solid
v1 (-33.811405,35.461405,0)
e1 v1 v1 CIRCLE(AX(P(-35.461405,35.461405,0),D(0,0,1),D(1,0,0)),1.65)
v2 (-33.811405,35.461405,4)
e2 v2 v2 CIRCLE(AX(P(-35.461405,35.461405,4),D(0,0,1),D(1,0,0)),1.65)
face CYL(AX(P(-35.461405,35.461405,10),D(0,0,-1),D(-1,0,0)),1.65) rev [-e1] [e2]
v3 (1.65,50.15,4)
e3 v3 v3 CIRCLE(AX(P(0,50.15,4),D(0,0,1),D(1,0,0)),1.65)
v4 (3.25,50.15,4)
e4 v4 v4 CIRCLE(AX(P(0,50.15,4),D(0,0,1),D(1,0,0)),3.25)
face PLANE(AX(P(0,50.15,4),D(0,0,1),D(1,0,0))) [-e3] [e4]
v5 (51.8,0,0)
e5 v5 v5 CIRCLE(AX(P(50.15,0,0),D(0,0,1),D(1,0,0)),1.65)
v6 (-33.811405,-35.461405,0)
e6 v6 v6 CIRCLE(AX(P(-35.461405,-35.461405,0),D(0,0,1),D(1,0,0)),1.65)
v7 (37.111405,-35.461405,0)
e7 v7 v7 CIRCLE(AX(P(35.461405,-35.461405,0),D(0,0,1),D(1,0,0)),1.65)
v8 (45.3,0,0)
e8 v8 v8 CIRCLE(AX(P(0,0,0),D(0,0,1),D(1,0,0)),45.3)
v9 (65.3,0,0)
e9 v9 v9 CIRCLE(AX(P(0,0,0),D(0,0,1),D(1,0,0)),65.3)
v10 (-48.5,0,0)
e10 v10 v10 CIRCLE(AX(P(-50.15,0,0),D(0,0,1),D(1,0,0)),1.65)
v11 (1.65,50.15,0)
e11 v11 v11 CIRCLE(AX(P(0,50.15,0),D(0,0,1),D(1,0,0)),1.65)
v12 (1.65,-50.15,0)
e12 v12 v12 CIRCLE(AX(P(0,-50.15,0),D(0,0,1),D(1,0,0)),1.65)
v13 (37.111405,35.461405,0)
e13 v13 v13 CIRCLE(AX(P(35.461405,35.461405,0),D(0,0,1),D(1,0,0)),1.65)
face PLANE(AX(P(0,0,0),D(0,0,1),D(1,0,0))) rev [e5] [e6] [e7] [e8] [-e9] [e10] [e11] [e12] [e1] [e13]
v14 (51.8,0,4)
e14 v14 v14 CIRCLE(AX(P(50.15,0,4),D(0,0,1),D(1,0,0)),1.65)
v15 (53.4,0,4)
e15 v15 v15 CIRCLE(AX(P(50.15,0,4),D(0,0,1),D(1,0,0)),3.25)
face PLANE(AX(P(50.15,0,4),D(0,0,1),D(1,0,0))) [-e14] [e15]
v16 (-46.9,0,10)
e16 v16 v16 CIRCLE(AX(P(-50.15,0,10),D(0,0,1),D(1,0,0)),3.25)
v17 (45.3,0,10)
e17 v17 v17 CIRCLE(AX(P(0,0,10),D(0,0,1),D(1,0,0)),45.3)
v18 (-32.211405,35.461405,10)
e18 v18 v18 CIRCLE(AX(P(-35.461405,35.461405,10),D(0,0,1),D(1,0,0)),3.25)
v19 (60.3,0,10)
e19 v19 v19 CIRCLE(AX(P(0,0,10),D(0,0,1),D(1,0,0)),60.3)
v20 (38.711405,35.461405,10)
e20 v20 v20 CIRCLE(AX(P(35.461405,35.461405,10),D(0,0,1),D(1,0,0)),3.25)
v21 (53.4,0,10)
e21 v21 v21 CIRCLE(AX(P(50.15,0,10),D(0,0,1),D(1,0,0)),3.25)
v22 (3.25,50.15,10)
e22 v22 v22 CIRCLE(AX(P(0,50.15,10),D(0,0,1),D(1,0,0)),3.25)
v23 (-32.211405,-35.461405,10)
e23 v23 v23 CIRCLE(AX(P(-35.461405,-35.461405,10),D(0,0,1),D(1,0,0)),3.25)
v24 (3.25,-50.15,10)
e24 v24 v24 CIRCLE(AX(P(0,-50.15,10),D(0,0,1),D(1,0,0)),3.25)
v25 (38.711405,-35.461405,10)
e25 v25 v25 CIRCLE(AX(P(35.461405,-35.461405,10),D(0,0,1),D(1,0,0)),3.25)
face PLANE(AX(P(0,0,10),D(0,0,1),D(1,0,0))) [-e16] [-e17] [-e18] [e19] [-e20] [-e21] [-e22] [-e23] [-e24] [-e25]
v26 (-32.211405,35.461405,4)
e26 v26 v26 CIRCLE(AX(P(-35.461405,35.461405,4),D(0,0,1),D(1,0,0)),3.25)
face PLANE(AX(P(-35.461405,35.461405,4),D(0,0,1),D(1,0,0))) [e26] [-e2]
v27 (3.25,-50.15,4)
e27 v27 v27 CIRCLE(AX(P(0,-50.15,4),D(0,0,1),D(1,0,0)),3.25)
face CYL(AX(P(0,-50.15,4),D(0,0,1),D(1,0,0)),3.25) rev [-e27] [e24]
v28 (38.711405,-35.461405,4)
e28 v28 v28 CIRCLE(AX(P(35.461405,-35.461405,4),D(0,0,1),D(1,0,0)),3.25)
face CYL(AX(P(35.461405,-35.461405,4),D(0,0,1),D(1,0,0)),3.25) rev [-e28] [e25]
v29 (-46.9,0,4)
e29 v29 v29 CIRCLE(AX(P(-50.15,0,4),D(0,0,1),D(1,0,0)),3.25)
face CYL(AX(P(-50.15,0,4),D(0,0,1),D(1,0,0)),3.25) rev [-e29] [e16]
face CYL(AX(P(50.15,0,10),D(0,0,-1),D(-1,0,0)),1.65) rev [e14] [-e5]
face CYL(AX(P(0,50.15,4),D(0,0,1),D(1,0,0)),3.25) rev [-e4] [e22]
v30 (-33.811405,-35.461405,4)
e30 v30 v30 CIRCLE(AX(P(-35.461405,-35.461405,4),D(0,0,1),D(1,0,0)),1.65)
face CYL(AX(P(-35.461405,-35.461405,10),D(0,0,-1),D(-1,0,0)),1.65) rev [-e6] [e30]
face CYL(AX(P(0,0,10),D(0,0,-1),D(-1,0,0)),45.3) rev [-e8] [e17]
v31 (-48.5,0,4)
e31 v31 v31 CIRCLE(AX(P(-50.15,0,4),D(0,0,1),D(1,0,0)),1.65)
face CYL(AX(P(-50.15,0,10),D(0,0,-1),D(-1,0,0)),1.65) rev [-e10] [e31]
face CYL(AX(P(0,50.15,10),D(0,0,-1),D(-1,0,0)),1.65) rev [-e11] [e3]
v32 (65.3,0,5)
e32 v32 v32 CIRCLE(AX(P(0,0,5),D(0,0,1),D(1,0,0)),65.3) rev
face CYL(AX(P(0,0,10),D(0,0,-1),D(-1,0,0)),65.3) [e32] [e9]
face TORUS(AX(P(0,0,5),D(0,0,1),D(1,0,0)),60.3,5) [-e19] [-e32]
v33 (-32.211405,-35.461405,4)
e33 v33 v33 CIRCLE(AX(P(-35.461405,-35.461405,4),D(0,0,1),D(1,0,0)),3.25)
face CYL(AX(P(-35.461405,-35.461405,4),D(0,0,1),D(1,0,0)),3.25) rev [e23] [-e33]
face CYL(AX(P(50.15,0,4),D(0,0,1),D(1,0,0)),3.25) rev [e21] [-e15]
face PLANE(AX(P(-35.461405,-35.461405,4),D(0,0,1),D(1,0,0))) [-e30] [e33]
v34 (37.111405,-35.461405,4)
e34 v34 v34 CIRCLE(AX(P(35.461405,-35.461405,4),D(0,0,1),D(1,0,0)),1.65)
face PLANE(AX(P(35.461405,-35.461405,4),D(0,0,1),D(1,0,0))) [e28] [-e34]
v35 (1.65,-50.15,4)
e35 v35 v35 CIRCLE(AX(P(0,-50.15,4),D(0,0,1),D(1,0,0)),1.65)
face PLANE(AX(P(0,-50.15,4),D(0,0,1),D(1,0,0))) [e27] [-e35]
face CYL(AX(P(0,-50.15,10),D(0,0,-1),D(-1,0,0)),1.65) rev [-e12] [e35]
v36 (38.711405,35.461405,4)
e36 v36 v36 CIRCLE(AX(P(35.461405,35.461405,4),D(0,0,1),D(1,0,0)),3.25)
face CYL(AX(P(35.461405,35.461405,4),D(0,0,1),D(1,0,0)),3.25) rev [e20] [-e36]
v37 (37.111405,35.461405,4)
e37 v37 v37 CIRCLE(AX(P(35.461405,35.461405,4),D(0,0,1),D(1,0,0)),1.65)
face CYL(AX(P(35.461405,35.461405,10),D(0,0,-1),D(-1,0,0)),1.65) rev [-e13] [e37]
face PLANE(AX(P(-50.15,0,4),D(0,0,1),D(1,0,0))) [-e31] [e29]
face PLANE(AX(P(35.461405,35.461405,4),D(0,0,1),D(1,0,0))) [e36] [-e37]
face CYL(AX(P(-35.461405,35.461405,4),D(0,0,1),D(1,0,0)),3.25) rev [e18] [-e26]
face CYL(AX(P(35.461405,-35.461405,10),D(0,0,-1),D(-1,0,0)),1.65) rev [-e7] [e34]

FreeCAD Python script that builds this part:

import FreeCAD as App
import Part
import Sketcher
from FreeCAD import Vector
Q = App.Units.Quantity


def edges_at(feature, points):
    """Names of the edges that pass closest to the given points."""
    edges = feature.Shape.Edges
    near = lambda p: min(range(len(edges)), key=lambda i: edges[i].distToShape(Part.Vertex(*p))[0])
    return sorted({f"Edge{near(p) + 1}" for p in points})

doc = App.newDocument("Part")
body = doc.addObject("PartDesign::Body", "Body")

sketch1 = body.newObject("Sketcher::SketchObject", "Sketch")
sketch1.AttachmentSupport = (doc.getObject("XY_Plane"), [""])
sketch1.MapMode = "FlatFace"
sketch1.addGeometry(Part.Circle(Vector(0, 0, 0), Vector(0, 0, 1), 65.3), False)
sketch1.addGeometry(Part.Circle(Vector(-35.461405, -35.461405, 0), Vector(0, 0, 1), 1.65), False)
sketch1.addGeometry(Part.Circle(Vector(0, -50.15, 0), Vector(0, 0, 1), 1.65), False)
sketch1.addGeometry(Part.Circle(Vector(-50.15, 0, 0), Vector(0, 0, 1), 1.65), False)
sketch1.addGeometry(Part.Circle(Vector(0, 0, 0), Vector(0, 0, 1), 45.3), False)
sketch1.addGeometry(Part.Circle(Vector(35.461405, -35.461405, 0), Vector(0, 0, 1), 1.65), False)
sketch1.addGeometry(Part.Circle(Vector(50.15, 0, 0), Vector(0, 0, 1), 1.65), False)
sketch1.addGeometry(Part.Circle(Vector(-35.461405, 35.461405, 0), Vector(0, 0, 1), 1.65), False)
sketch1.addGeometry(Part.Circle(Vector(0, 50.15, 0), Vector(0, 0, 1), 1.65), False)
sketch1.addGeometry(Part.Circle(Vector(35.461405, 35.461405, 0), Vector(0, 0, 1), 1.65), False)
sketch1.addConstraint(Sketcher.Constraint("Coincident", 0, 3, -1, 1))
sketch1.addConstraint(Sketcher.Constraint("Coincident", 4, 3, -1, 1))
sketch1.addConstraint(Sketcher.Constraint("Equal", 1, 2))
sketch1.addConstraint(Sketcher.Constraint("Equal", 2, 3))
sketch1.addConstraint(Sketcher.Constraint("Equal", 3, 5))
sketch1.addConstraint(Sketcher.Constraint("Equal", 5, 6))
sketch1.addConstraint(Sketcher.Constraint("Equal", 6, 7))
sketch1.addConstraint(Sketcher.Constraint("Equal", 7, 8))
sketch1.addConstraint(Sketcher.Constraint("Equal", 8, 9))
sketch1.addConstraint(Sketcher.Constraint("Symmetric", 3, 3, 6, 3, -1, 1))
sketch1.addConstraint(Sketcher.Constraint("Symmetric", 5, 3, 7, 3, -1, 1))
sketch1.addConstraint(Sketcher.Constraint("Symmetric", 2, 3, 8, 3, -1, 1))
sketch1.addConstraint(Sketcher.Constraint("Symmetric", 1, 3, 9, 3, -1, 1))
sketch1.addConstraint(Sketcher.Constraint("Symmetric", 1, 3, 5, 3, -2))
sketch1.addConstraint(Sketcher.Constraint("PointOnObject", 2, 3, -2))
sketch1.addConstraint(Sketcher.Constraint("PointOnObject", 3, 3, -1))
sketch1.addConstraint(Sketcher.Constraint("Diameter", 0, Q("130.6 mm")))
sketch1.addConstraint(Sketcher.Constraint("Diameter", 1, Q("3.3 mm")))
sketch1.addConstraint(Sketcher.Constraint("Diameter", 4, Q("90.6 mm")))
sketch1.addConstraint(Sketcher.Constraint("DistanceY", 2, 3, -1, 1, Q("50.15 mm")))
sketch1.addConstraint(Sketcher.Constraint("DistanceX", 3, 3, -1, 1, Q("50.15 mm")))
sketch1.addConstraint(Sketcher.Constraint("DistanceX", 1, 3, 5, 3, Q("70.92281 mm")))
sketch1.addConstraint(Sketcher.Constraint("DistanceY", 1, 3, 7, 3, Q("70.92281 mm")))
pad1 = body.newObject("PartDesign::Pad", "Pad")
pad1.Profile = sketch1
pad1.Length = 10
doc.recompute()

fillet = body.newObject("PartDesign::Fillet", "Fillet")
fillet.Base = (pad1, edges_at(pad1, [(-65.3, 0, 10)]))
fillet.Radius = 5

sketch2 = body.newObject("Sketcher::SketchObject", "Sketch001")
sketch2.AttachmentSupport = (doc.getObject("XY_Plane"), [""])
sketch2.MapMode = "FlatFace"
sketch2.AttachmentOffset = App.Placement(Vector(0, 0, 10), App.Rotation())
sketch2.addGeometry(Part.Circle(Vector(-50.15, 0, 0), Vector(0, 0, 1), 3.25), False)
sketch2.addGeometry(Part.Circle(Vector(-35.461405, -35.461405, 0), Vector(0, 0, 1), 3.25), False)
sketch2.addGeometry(Part.Circle(Vector(-35.461405, 35.461405, 0), Vector(0, 0, 1), 3.25), False)
sketch2.addGeometry(Part.Circle(Vector(0, 50.15, 0), Vector(0, 0, 1), 3.25), False)
sketch2.addGeometry(Part.Circle(Vector(35.461405, 35.461405, 0), Vector(0, 0, 1), 3.25), False)
sketch2.addGeometry(Part.Circle(Vector(50.15, 0, 0), Vector(0, 0, 1), 3.25), False)
sketch2.addGeometry(Part.Circle(Vector(35.461405, -35.461405, 0), Vector(0, 0, 1), 3.25), False)
sketch2.addGeometry(Part.Circle(Vector(0, -50.15, 0), Vector(0, 0, 1), 3.25), False)
sketch2.addConstraint(Sketcher.Constraint("Equal", 0, 1))
sketch2.addConstraint(Sketcher.Constraint("Equal", 1, 2))
sketch2.addConstraint(Sketcher.Constraint("Equal", 2, 3))
sketch2.addConstraint(Sketcher.Constraint("Equal", 3, 4))
sketch2.addConstraint(Sketcher.Constraint("Equal", 4, 5))
sketch2.addConstraint(Sketcher.Constraint("Equal", 5, 6))
sketch2.addConstraint(Sketcher.Constraint("Equal", 6, 7))
sketch2.addConstraint(Sketcher.Constraint("Symmetric", 1, 3, 4, 3, -1, 1))
sketch2.addConstraint(Sketcher.Constraint("Symmetric", 0, 3, 5, 3, -1, 1))
sketch2.addConstraint(Sketcher.Constraint("Symmetric", 2, 3, 6, 3, -1, 1))
sketch2.addConstraint(Sketcher.Constraint("Symmetric", 3, 3, 7, 3, -1, 1))
sketch2.addConstraint(Sketcher.Constraint("Symmetric", 2, 3, 4, 3, -2))
sketch2.addConstraint(Sketcher.Constraint("PointOnObject", 0, 3, -1))
sketch2.addConstraint(Sketcher.Constraint("PointOnObject", 3, 3, -2))
sketch2.addConstraint(Sketcher.Constraint("Diameter", 0, Q("6.5 mm")))
sketch2.addConstraint(Sketcher.Constraint("DistanceX", 0, 3, 5, 3, Q("100.3 mm")))
sketch2.addConstraint(Sketcher.Constraint("DistanceY", -1, 1, 3, 3, Q("50.15 mm")))
sketch2.addConstraint(Sketcher.Constraint("DistanceY", 1, 3, 2, 3, Q("70.92281 mm")))
sketch2.addConstraint(Sketcher.Constraint("DistanceX", 2, 3, 4, 3, Q("70.92281 mm")))
pocket1 = body.newObject("PartDesign::Pocket", "Pocket")
pocket1.Profile = sketch2
pocket1.Length = 6

doc.recompute()
